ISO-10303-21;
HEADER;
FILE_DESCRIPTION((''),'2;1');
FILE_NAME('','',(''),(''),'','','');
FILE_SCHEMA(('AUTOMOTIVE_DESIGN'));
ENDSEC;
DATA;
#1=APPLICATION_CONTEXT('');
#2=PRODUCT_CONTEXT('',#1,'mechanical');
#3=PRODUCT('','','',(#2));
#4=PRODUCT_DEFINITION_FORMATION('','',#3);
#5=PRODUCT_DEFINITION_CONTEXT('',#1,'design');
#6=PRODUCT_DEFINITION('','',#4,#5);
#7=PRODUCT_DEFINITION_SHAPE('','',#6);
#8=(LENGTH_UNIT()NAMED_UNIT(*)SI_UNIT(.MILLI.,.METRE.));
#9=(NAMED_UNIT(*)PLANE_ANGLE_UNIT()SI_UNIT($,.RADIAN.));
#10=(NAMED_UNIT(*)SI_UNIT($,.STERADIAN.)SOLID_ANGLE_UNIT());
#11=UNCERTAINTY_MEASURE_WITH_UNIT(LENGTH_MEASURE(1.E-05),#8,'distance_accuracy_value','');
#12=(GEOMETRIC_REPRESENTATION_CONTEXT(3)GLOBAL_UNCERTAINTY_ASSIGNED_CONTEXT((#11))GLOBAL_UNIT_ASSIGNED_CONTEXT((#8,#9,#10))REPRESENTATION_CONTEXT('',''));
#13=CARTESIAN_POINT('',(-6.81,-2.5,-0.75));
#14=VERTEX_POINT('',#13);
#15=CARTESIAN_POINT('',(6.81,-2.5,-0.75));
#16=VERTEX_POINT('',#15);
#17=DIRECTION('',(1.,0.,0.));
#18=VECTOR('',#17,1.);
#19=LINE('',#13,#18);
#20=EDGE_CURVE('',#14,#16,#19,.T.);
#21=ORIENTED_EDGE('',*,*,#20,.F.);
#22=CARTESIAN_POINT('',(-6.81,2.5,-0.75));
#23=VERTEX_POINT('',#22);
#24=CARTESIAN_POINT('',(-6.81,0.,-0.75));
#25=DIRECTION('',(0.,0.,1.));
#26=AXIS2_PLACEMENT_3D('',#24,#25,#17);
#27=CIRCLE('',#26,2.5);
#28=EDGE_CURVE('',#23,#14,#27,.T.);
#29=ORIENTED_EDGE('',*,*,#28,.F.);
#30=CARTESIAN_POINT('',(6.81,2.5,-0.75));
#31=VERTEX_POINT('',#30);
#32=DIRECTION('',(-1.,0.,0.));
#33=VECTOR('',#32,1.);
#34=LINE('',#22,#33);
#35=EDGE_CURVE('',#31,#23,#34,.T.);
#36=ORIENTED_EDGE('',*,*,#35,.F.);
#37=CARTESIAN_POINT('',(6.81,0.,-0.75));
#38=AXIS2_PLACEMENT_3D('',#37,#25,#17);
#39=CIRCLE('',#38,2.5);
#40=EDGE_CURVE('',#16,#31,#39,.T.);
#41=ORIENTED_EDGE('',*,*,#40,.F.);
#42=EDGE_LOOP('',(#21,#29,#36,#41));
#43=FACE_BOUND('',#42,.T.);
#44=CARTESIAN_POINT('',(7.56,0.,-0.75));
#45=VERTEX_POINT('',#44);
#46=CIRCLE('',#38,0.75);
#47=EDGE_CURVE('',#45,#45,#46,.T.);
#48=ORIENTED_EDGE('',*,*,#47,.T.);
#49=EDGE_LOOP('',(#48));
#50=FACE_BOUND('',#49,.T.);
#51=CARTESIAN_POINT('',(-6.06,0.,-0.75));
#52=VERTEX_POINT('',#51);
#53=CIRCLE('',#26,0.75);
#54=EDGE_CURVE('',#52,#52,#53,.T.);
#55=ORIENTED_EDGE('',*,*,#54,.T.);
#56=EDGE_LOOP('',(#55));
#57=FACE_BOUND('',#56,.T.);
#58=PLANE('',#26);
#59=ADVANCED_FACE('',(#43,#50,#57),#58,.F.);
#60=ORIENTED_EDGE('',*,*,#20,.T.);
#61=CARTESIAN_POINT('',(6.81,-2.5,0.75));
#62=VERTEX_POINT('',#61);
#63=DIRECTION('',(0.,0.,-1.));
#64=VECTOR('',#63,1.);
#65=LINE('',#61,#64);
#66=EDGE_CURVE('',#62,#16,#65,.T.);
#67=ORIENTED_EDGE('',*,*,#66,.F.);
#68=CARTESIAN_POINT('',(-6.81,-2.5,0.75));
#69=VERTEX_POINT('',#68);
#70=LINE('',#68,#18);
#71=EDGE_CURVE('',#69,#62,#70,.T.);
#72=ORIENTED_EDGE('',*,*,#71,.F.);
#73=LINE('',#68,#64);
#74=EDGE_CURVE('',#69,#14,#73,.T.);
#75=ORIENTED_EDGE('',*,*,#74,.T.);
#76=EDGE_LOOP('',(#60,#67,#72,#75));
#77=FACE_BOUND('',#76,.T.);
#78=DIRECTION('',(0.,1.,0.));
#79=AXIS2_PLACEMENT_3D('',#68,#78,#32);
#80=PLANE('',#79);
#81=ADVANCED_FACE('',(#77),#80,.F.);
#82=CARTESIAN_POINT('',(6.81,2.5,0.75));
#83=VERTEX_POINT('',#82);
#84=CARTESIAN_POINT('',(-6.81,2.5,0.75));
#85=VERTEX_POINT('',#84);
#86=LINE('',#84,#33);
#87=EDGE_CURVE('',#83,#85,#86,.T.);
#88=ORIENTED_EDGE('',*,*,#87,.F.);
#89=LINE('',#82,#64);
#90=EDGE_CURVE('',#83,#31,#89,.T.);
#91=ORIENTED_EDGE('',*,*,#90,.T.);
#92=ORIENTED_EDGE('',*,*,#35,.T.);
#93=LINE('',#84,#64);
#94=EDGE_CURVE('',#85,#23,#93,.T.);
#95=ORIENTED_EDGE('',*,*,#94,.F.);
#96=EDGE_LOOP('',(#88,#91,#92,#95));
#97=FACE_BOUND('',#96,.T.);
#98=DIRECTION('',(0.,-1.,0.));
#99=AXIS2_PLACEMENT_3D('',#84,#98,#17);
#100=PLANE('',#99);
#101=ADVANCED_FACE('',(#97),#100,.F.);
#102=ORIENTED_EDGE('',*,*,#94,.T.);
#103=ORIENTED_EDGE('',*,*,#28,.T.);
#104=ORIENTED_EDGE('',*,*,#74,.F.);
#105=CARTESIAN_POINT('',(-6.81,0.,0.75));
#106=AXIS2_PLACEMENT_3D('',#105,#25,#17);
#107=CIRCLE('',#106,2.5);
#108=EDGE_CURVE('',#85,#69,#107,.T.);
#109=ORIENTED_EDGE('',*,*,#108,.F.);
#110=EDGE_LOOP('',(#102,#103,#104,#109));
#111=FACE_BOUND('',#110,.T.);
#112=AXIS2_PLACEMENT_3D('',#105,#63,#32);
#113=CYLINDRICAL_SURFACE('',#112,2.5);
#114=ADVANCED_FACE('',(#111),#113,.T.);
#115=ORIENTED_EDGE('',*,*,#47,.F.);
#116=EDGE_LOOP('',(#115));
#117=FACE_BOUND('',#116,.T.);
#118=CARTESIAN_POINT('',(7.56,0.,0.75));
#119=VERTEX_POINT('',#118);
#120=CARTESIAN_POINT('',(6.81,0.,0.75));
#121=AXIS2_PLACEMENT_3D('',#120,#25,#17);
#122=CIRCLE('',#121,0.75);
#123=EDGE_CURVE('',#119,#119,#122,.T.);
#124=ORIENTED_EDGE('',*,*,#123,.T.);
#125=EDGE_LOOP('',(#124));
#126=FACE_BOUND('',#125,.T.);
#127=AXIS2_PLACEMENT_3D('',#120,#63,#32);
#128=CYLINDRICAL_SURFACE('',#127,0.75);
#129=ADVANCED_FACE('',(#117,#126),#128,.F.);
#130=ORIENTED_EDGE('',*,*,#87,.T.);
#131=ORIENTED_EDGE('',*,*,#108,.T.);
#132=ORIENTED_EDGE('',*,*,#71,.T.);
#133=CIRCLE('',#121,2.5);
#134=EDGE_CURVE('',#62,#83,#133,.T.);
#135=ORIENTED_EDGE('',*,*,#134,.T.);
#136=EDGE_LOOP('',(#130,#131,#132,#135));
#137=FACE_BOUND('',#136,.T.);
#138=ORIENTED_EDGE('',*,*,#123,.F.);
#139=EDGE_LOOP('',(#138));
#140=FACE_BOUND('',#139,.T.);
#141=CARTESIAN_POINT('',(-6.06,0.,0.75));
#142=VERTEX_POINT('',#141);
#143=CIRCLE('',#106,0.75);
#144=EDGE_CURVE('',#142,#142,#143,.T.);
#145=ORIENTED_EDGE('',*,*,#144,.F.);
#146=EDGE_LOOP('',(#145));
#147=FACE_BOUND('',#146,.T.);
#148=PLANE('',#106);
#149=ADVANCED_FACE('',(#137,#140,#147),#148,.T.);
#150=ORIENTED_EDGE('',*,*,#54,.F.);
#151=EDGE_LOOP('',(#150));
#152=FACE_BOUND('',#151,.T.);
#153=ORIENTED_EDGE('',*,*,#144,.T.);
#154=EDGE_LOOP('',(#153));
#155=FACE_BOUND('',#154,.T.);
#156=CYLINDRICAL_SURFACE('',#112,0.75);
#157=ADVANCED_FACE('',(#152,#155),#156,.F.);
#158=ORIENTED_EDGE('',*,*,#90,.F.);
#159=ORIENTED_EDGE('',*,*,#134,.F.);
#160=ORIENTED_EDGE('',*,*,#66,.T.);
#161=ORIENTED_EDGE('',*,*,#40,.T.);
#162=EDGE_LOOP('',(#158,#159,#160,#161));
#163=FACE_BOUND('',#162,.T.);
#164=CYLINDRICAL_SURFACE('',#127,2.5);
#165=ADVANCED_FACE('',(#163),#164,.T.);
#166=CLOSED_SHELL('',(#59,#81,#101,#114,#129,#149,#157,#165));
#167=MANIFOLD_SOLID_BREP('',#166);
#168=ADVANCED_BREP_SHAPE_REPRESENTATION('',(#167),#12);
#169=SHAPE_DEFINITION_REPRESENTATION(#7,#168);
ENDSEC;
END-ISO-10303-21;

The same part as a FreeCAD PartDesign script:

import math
import FreeCAD as App
import Part
import Sketcher
from FreeCAD import Vector
Q = App.Units.Quantity

doc = App.newDocument("Part")
body = doc.addObject("PartDesign::Body", "Body")

# Sketch on XY plane
sketch1 = doc.addObject("Sketcher::SketchObject", "Sketch")
body.addObject(sketch1)
sketch1.AttachmentSupport = (doc.XY_Plane, [""])
sketch1.MapMode = "FlatFace"
sketch1.addGeometry([
    Part.LineSegment(Vector(6.8, 2.5, 0), Vector(-6.8, 2.5, 0)),  # 0
    Part.ArcOfCircle(Part.Circle(Vector(-6.8, 0, 0), Vector(0, 0, 1), 2.5), math.radians(90), math.radians(270)),  # 1
    Part.LineSegment(Vector(-6.8, -2.5, 0), Vector(6.8, -2.5, 0)),  # 2
    Part.ArcOfCircle(Part.Circle(Vector(6.8, 0, 0), Vector(0, 0, 1), 2.5), math.radians(-90), math.radians(90)),  # 3
    Part.Circle(Vector(6.8, 0, 0), Vector(0, 0, 1), 0.8),  # 4
    Part.Circle(Vector(-6.8, 0, 0), Vector(0, 0, 1), 0.8),  # 5
], False)
sketch1.addConstraint([
    Sketcher.Constraint("Tangent", 0, 2, 1, 1),
    Sketcher.Constraint("Tangent", 1, 2, 2, 1),
    Sketcher.Constraint("Tangent", 2, 2, 3, 1),
    Sketcher.Constraint("Tangent", 3, 2, 0, 1),
    Sketcher.Constraint("Horizontal", 0),
    Sketcher.Constraint("Horizontal", 2),
    Sketcher.Constraint("Coincident", 4, 3, 3, 3),
    Sketcher.Constraint("Coincident", 5, 3, 1, 3),
    Sketcher.Constraint("Equal", 4, 5),
    Sketcher.Constraint("Symmetric", 1, 3, 3, 3, -1, 1),
    Sketcher.Constraint("Diameter", 4, Q("1.5 mm")),
    Sketcher.Constraint("Radius", 1, Q("2.5 mm")),
    Sketcher.Constraint("DistanceX", 0, 2, 0, 1, Q("13.62 mm")),
])
pad1 = doc.addObject("PartDesign::Pad", "Pad")
body.addObject(pad1)
pad1.Profile = sketch1
pad1.Length = 1.5
pad1.Midplane = True

doc.recompute()
